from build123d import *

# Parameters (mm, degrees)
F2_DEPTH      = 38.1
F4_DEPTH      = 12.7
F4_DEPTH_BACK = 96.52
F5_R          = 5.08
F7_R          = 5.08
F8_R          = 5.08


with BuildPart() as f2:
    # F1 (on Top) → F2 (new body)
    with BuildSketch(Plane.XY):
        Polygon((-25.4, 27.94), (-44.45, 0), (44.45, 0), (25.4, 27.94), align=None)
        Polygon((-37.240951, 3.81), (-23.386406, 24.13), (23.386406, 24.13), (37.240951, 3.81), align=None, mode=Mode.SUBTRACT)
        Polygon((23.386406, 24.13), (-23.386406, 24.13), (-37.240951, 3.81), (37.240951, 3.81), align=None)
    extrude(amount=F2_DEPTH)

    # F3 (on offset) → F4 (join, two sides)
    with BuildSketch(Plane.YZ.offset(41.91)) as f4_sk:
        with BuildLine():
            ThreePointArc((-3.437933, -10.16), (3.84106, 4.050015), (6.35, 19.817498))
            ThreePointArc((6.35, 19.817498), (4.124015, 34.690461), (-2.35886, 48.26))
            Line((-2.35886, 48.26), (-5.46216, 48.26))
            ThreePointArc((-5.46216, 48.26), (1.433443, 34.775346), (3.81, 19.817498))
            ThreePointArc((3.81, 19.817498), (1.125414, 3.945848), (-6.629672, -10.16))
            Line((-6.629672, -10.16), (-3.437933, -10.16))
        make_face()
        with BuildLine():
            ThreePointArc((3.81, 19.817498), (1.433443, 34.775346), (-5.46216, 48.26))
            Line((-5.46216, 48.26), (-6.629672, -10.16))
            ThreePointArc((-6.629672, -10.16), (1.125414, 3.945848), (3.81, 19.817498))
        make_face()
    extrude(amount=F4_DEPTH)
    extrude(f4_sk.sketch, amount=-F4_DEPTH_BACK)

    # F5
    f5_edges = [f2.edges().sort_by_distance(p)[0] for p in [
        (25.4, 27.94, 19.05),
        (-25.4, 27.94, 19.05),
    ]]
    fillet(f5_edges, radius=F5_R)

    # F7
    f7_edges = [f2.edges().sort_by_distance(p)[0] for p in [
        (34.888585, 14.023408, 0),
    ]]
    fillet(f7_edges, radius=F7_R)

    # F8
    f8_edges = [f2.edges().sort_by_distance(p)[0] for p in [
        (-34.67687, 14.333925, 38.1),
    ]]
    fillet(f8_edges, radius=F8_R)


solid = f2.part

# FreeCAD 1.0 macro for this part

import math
import FreeCAD as App
import Part
import Sketcher
Q = App.Units.Quantity


def edges_at(feature, points):
    """Names of the edges that pass closest to the given points."""
    edges = feature.Shape.Edges
    near = lambda p: min(range(len(edges)), key=lambda i: edges[i].distToShape(Part.Vertex(*p))[0])
    return sorted({f"Edge{near(p) + 1}" for p in points})

doc = App.newDocument("Part")
body = doc.addObject("PartDesign::Body", "Body")

sketch1 = body.newObject("Sketcher::SketchObject", "Sketch")
sketch1.AttachmentSupport = (doc.getObject("XY_Plane"), [""])
sketch1.MapMode = "FlatFace"
sketch1.addGeometry([
    Part.LineSegment(App.Vector(-25, 28, 0), App.Vector(-44, 0, 0)),
    Part.LineSegment(App.Vector(-44, 0, 0), App.Vector(44, 0, 0)),
    Part.LineSegment(App.Vector(44, 0, 0), App.Vector(25, 28, 0)),
    Part.LineSegment(App.Vector(25, 28, 0), App.Vector(-25, 28, 0)),
], False)
sketch1.addConstraint([
    Sketcher.Constraint("Coincident", 0, 2, 1, 1),
    Sketcher.Constraint("Coincident", 1, 2, 2, 1),
    Sketcher.Constraint("Coincident", 2, 2, 3, 1),
    Sketcher.Constraint("Coincident", 3, 2, 0, 1),
    Sketcher.Constraint("Horizontal", 1),
    Sketcher.Constraint("Horizontal", 3),
    Sketcher.Constraint("Symmetric", 0, 2, 1, 2, -1, 1),
    Sketcher.Constraint("Equal", 0, 2),
    Sketcher.Constraint("DistanceX", 3, 2, 3, 1, Q("2 in")),
    Sketcher.Constraint("DistanceX", 1, 1, 1, 2, Q("3.5 in")),
    Sketcher.Constraint("DistanceY", -1, 1, 2, 2, Q("1.1 in")),
])
pad1 = body.newObject("PartDesign::Pad", "Pad")
pad1.Profile = sketch1
pad1.Length = Q("1.5 in")

sketch2 = body.newObject("Sketcher::SketchObject", "Sketch001")
sketch2.AttachmentSupport = (doc.getObject("YZ_Plane"), [""])
sketch2.MapMode = "FlatFace"
sketch2.AttachmentOffset = App.Placement(App.Vector(0, 0, 1.65 * 25.4), App.Rotation())
sketch2.addGeometry([
    Part.ArcOfCircle(Part.Circle(App.Vector(-44.5, 19.8, 0), App.Vector(0, 0, 1), 50.8), math.radians(-36), math.radians(0)),
    Part.ArcOfCircle(Part.Circle(App.Vector(-44.5, 19.8, 0), App.Vector(0, 0, 1), 50.8), math.radians(0), math.radians(34)),
    Part.LineSegment(App.Vector(-2.4, 48.3, 0), App.Vector(-5.5, 48.3, 0)),
    Part.LineSegment(App.Vector(-5.5, 48.3, 0), App.Vector(-6.6, -10.2, 0)),
    Part.LineSegment(App.Vector(-6.6, -10.2, 0), App.Vector(-3.4, -10.2, 0)),
], False)
sketch2.addConstraint([
    Sketcher.Constraint("Tangent", 0, 2, 1, 1),
    Sketcher.Constraint("Coincident", 1, 2, 2, 1),
    Sketcher.Constraint("Coincident", 2, 2, 3, 1),
    Sketcher.Constraint("Coincident", 3, 2, 4, 1),
    Sketcher.Constraint("Coincident", 4, 2, 0, 1),
    Sketcher.Constraint("Horizontal", 2),
    Sketcher.Constraint("Horizontal", 4),
    Sketcher.Constraint("Radius", 0, Q("2.0000001 in")),
    Sketcher.Constraint("DistanceY", -1, 1, 1, 2, Q("1.9 in")),
    Sketcher.Constraint("DistanceY", 3, 2, -1, 1, Q("0.4 in")),
    Sketcher.Constraint("DistanceX", 0, 3, -1, 1, Q("1.7500001 in")),
    Sketcher.Constraint("DistanceX", 2, 2, 2, 1, 3.1033),
    Sketcher.Constraint("Radius", 1, 50.800007),
    Sketcher.Constraint("DistanceX", 4, 1, 4, 2, 3.191739),
    Sketcher.Constraint("DistanceY", -1, 1, 0, 3, 19.817499),
    Sketcher.Constraint("DistanceY", -1, 1, 0, 2, 19.817498),
])
pad2 = body.newObject("PartDesign::Pad", "Pad001")
pad2.Profile = sketch2
pad2.Type = "TwoLengths"
pad2.Length = Q("0.5 in")
pad2.Length2 = Q("3.8 in")
doc.recompute()

fillet = body.newObject("PartDesign::Fillet", "Fillet")
fillet.Base = (pad2, edges_at(pad2, [(25.4, 27.94, 19.05), (-25.4, 27.94, 19.05)]))
fillet.Radius = Q("0.2 in")
doc.recompute()

fillet2 = body.newObject("PartDesign::Fillet", "Fillet001")
fillet2.Base = (fillet, edges_at(fillet, [(34.889, 14.023, 0)]))
fillet2.Radius = Q("0.2 in")
doc.recompute()

fillet3 = body.newObject("PartDesign::Fillet", "Fillet002")
fillet3.Base = (fillet2, edges_at(fillet2, [(-34.677, 14.334, 38.1)]))
fillet3.Radius = Q("0.2 in")

doc.recompute()
